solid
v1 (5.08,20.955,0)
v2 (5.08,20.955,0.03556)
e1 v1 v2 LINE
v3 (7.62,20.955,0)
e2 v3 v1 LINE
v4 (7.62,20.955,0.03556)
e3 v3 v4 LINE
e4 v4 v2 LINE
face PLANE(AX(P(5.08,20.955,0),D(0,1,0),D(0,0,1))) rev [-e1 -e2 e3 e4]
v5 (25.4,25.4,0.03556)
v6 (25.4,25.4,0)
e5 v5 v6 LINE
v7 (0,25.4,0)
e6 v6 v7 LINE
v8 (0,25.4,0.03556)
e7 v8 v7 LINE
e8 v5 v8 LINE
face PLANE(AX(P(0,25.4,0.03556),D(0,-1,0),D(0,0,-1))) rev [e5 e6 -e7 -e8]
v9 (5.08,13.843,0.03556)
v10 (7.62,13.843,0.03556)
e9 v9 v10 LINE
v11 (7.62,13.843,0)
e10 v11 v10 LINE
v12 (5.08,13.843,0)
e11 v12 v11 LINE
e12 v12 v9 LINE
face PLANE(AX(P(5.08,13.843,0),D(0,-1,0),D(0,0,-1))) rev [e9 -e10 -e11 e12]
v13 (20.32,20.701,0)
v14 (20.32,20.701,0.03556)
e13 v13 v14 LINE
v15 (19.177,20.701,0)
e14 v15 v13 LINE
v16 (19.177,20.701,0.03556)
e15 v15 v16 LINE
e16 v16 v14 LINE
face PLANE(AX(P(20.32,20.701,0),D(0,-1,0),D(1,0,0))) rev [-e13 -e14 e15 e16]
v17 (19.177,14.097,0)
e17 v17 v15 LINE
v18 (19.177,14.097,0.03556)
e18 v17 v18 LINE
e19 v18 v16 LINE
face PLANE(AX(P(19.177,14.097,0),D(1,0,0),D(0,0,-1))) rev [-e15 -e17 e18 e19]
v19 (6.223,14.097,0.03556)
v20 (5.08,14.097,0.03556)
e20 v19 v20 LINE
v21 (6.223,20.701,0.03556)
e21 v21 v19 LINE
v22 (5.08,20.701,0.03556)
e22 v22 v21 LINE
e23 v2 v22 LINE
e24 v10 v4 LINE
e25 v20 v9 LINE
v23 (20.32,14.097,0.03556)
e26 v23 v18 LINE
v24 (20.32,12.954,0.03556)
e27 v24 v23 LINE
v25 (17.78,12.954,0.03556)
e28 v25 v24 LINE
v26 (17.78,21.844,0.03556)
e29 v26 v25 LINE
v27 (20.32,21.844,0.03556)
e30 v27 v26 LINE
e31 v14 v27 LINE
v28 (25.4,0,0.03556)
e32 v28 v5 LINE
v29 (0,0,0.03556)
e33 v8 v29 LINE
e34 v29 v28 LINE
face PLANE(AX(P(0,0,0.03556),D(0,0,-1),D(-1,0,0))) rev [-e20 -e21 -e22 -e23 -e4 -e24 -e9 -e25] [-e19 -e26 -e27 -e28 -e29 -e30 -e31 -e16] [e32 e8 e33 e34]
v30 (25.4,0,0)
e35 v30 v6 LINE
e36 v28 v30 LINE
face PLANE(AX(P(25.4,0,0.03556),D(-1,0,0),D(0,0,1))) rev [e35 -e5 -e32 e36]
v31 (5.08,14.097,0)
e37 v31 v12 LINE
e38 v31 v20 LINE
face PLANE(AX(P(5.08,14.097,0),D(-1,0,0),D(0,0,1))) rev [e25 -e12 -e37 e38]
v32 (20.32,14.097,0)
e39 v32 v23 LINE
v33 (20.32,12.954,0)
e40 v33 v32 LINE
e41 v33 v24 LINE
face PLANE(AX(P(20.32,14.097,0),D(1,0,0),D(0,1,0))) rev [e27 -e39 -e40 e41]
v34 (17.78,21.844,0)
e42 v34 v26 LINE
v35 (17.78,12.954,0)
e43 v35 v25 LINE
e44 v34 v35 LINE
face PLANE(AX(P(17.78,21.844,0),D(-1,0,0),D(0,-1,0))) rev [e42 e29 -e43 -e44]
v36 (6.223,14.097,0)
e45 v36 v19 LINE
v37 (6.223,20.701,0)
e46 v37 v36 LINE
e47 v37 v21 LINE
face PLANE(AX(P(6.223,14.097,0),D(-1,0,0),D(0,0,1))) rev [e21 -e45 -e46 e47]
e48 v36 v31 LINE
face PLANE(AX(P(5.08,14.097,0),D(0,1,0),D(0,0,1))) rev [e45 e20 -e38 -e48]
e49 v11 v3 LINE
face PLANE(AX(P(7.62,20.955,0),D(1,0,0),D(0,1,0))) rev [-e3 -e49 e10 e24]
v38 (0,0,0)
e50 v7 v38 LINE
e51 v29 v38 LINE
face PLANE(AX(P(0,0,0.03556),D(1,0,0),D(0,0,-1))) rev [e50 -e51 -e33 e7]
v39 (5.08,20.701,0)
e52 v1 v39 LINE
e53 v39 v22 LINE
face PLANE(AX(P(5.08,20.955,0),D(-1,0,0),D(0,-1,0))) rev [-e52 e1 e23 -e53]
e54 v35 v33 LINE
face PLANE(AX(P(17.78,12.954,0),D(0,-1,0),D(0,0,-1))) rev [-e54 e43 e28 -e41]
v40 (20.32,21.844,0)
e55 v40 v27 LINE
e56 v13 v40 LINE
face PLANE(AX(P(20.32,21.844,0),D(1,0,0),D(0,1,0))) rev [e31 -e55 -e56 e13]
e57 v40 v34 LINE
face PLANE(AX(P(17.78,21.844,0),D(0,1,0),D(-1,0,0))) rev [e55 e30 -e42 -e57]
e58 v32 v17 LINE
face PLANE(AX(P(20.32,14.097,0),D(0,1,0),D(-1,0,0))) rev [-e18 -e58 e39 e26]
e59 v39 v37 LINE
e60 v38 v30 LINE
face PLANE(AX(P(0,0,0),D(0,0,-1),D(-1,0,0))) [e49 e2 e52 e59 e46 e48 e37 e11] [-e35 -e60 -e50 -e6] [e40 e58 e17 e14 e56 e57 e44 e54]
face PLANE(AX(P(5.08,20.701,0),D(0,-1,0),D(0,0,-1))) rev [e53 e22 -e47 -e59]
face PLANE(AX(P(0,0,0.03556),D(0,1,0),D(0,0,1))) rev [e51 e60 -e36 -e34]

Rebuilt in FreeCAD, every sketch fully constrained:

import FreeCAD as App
import Part
import Sketcher
Q = App.Units.Quantity

doc = App.newDocument("Part")
body = doc.addObject("PartDesign::Body", "Body")

sketch1 = body.newObject("Sketcher::SketchObject", "Sketch")
sketch1.AttachmentSupport = (doc.getObject("XY_Plane"), [""])
sketch1.MapMode = "FlatFace"
sketch1.addGeometry(Part.LineSegment(App.Vector(0, 25, 0), App.Vector(0, 0, 0)), False)
sketch1.addGeometry(Part.LineSegment(App.Vector(0, 0, 0), App.Vector(25, 0, 0)), False)
sketch1.addGeometry(Part.LineSegment(App.Vector(25, 0, 0), App.Vector(25, 25, 0)), False)
sketch1.addGeometry(Part.LineSegment(App.Vector(25, 25, 0), App.Vector(0, 25, 0)), False)
sketch1.addConstraint(Sketcher.Constraint("Coincident", 0, 2, 1, 1))
sketch1.addConstraint(Sketcher.Constraint("Coincident", 1, 2, 2, 1))
sketch1.addConstraint(Sketcher.Constraint("Coincident", 2, 2, 3, 1))
sketch1.addConstraint(Sketcher.Constraint("Coincident", 3, 2, 0, 1))
sketch1.addConstraint(Sketcher.Constraint("Vertical", 0))
sketch1.addConstraint(Sketcher.Constraint("Horizontal", 1))
sketch1.addConstraint(Sketcher.Constraint("Vertical", 2))
sketch1.addConstraint(Sketcher.Constraint("Horizontal", 3))
sketch1.addConstraint(Sketcher.Constraint("Coincident", 0, 2, -1, 1))
sketch1.addConstraint(Sketcher.Constraint("Equal", 3, 0))
sketch1.addConstraint(Sketcher.Constraint("DistanceX", 1, 1, 1, 2, Q("1 in")))
pad1 = body.newObject("PartDesign::Pad", "Pad")
pad1.Profile = sketch1
pad1.Length = Q("0.0014 in")

sketch2 = body.newObject("Sketcher::SketchObject", "Sketch001")
sketch2.AttachmentSupport = (doc.getObject("XY_Plane"), [""])
sketch2.MapMode = "FlatFace"
sketch2.AttachmentOffset = App.Placement(App.Vector(0, 0, 0.0014 * 25.4), App.Rotation())
sketch2.addGeometry(Part.LineSegment(App.Vector(7.62, 20.95, 0), App.Vector(5.08, 20.95, 0)), False)
sketch2.addGeometry(Part.LineSegment(App.Vector(5.08, 20.95, 0), App.Vector(5.08, 20.7, 0)), False)
sketch2.addGeometry(Part.LineSegment(App.Vector(5.08, 20.7, 0), App.Vector(6.22, 20.7, 0)), False)
sketch2.addGeometry(Part.LineSegment(App.Vector(6.22, 20.7, 0), App.Vector(6.22, 14.1, 0)), False)
sketch2.addGeometry(Part.LineSegment(App.Vector(6.22, 14.1, 0), App.Vector(5.08, 14.1, 0)), False)
sketch2.addGeometry(Part.LineSegment(App.Vector(5.08, 14.1, 0), App.Vector(5.08, 13.84, 0)), False)
sketch2.addGeometry(Part.LineSegment(App.Vector(5.08, 13.84, 0), App.Vector(7.62, 13.84, 0)), False)
sketch2.addGeometry(Part.LineSegment(App.Vector(7.62, 13.84, 0), App.Vector(7.62, 20.95, 0)), False)
sketch2.addGeometry(Part.LineSegment(App.Vector(20.32, 21.84, 0), App.Vector(17.78, 21.84, 0)), False)
sketch2.addGeometry(Part.LineSegment(App.Vector(17.78, 21.84, 0), App.Vector(17.78, 12.95, 0)), False)
sketch2.addGeometry(Part.LineSegment(App.Vector(17.78, 12.95, 0), App.Vector(20.32, 12.95, 0)), False)
sketch2.addGeometry(Part.LineSegment(App.Vector(20.32, 12.95, 0), App.Vector(20.32, 14.1, 0)), False)
sketch2.addGeometry(Part.LineSegment(App.Vector(20.32, 14.1, 0), App.Vector(19.18, 14.1, 0)), False)
sketch2.addGeometry(Part.LineSegment(App.Vector(19.18, 14.1, 0), App.Vector(19.18, 20.7, 0)), False)
sketch2.addGeometry(Part.LineSegment(App.Vector(19.18, 20.7, 0), App.Vector(20.32, 20.7, 0)), False)
sketch2.addGeometry(Part.LineSegment(App.Vector(20.32, 20.7, 0), App.Vector(20.32, 21.84, 0)), False)
sketch2.addConstraint(Sketcher.Constraint("Coincident", 0, 2, 1, 1))
sketch2.addConstraint(Sketcher.Constraint("Coincident", 1, 2, 2, 1))
sketch2.addConstraint(Sketcher.Constraint("Coincident", 2, 2, 3, 1))
sketch2.addConstraint(Sketcher.Constraint("Coincident", 3, 2, 4, 1))
sketch2.addConstraint(Sketcher.Constraint("Coincident", 4, 2, 5, 1))
sketch2.addConstraint(Sketcher.Constraint("Coincident", 5, 2, 6, 1))
sketch2.addConstraint(Sketcher.Constraint("Coincident", 6, 2, 7, 1))
sketch2.addConstraint(Sketcher.Constraint("Coincident", 7, 2, 0, 1))
sketch2.addConstraint(Sketcher.Constraint("Coincident", 8, 2, 9, 1))
sketch2.addConstraint(Sketcher.Constraint("Coincident", 9, 2, 10, 1))
sketch2.addConstraint(Sketcher.Constraint("Coincident", 10, 2, 11, 1))
sketch2.addConstraint(Sketcher.Constraint("Coincident", 11, 2, 12, 1))
sketch2.addConstraint(Sketcher.Constraint("Coincident", 12, 2, 13, 1))
sketch2.addConstraint(Sketcher.Constraint("Coincident", 13, 2, 14, 1))
sketch2.addConstraint(Sketcher.Constraint("Coincident", 14, 2, 15, 1))
sketch2.addConstraint(Sketcher.Constraint("Coincident", 15, 2, 8, 1))
sketch2.addConstraint(Sketcher.Constraint("Horizontal", 0))
sketch2.addConstraint(Sketcher.Constraint("Vertical", 1))
sketch2.addConstraint(Sketcher.Constraint("Horizontal", 2))
sketch2.addConstraint(Sketcher.Constraint("Vertical", 3))
sketch2.addConstraint(Sketcher.Constraint("Horizontal", 4))
sketch2.addConstraint(Sketcher.Constraint("Vertical", 5))
sketch2.addConstraint(Sketcher.Constraint("Horizontal", 6))
sketch2.addConstraint(Sketcher.Constraint("Vertical", 7))
sketch2.addConstraint(Sketcher.Constraint("Horizontal", 8))
sketch2.addConstraint(Sketcher.Constraint("Vertical", 9))
sketch2.addConstraint(Sketcher.Constraint("Horizontal", 10))
sketch2.addConstraint(Sketcher.Constraint("Vertical", 11))
sketch2.addConstraint(Sketcher.Constraint("Horizontal", 12))
sketch2.addConstraint(Sketcher.Constraint("Vertical", 13))
sketch2.addConstraint(Sketcher.Constraint("Horizontal", 14))
sketch2.addConstraint(Sketcher.Constraint("Vertical", 15))
sketch2.addConstraint(Sketcher.Constraint("Horizontal", 4, 2, 11, 2))
sketch2.addConstraint(Sketcher.Constraint("Horizontal", 2, 2, 13, 2))
sketch2.addConstraint(Sketcher.Constraint("Vertical", 1, 2, 4, 2))
sketch2.addConstraint(Sketcher.Constraint("Vertical", 11, 2, 14, 2))
sketch2.addConstraint(Sketcher.Constraint("Equal", 6, 8))
sketch2.addConstraint(Sketcher.Constraint("Equal", 4, 12))
sketch2.addConstraint(Sketcher.Constraint("Equal", 1, 5))
sketch2.addConstraint(Sketcher.Constraint("Equal", 14, 11))
sketch2.addConstraint(Sketcher.Constraint("Equal", 11, 15))
sketch2.addConstraint(Sketcher.Constraint("DistanceX", 0, 2, 0, 1, Q("0.1 in")))
sketch2.addConstraint(Sketcher.Constraint("DistanceY", 1, 2, 1, 1, Q("0.01 in")))
sketch2.addConstraint(Sketcher.Constraint("DistanceY", 3, 2, 3, 1, Q("0.26 in")))
sketch2.addConstraint(Sketcher.Constraint("DistanceY", 9, 2, 9, 1, Q("0.35 in")))
sketch2.addConstraint(Sketcher.Constraint("DistanceX", -1, 1, 0, 2, Q("0.2 in")))
sketch2.addConstraint(Sketcher.Constraint("DistanceX", -1, 1, 8, 2, Q("0.7 in")))
sketch2.addConstraint(Sketcher.Constraint("DistanceY", -1, 1, 8, 2, Q("0.86 in")))
pocket1 = body.newObject("PartDesign::Pocket", "Pocket")
pocket1.Profile = sketch2
pocket1.Type = "ThroughAll"

doc.recompute()
